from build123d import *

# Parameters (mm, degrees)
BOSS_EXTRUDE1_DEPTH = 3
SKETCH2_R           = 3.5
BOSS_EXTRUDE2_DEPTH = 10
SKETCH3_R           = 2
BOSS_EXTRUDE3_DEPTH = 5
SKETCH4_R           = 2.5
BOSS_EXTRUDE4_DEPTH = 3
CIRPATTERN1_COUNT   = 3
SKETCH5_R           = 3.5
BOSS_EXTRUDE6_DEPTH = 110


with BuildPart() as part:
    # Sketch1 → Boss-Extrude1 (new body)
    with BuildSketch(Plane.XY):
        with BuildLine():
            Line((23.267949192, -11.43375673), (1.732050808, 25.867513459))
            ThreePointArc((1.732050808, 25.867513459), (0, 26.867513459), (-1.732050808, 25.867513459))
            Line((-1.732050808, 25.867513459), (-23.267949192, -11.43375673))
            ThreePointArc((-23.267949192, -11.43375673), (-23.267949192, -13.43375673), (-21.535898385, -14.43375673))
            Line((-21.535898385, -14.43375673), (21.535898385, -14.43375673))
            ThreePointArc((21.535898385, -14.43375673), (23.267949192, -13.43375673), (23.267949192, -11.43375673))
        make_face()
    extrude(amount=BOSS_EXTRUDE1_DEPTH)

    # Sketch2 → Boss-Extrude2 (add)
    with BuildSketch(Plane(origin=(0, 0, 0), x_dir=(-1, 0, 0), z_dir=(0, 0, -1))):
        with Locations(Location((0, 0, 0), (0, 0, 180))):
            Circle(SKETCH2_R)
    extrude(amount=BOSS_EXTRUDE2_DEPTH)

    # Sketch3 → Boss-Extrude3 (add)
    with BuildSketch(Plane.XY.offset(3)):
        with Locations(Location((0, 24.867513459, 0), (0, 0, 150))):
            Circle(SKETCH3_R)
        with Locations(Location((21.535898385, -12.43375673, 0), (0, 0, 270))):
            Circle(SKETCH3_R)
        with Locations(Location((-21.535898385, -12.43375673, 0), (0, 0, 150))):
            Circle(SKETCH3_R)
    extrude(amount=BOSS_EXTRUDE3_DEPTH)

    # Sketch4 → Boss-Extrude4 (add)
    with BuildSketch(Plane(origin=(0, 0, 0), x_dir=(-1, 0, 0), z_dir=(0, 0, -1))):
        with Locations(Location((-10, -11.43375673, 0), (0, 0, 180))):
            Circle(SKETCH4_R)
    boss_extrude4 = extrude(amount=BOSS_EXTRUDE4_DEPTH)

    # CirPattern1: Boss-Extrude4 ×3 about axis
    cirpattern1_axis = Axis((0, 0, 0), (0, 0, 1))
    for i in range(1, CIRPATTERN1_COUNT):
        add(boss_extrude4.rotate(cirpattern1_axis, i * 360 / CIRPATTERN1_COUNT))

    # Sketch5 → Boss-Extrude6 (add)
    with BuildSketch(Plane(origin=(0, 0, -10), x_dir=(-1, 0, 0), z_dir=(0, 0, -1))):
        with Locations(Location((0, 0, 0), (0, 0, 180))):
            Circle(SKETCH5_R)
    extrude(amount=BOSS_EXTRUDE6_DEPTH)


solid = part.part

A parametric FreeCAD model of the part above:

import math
import FreeCAD as App
import Part
import Sketcher

V = App.Vector
Q = App.Units.Quantity

doc = App.newDocument("Part")
body = doc.addObject("PartDesign::Body", "Body")

# Sketch on XY plane
sketch1 = body.newObject("Sketcher::SketchObject", "Sketch")
sketch1.AttachmentSupport = (doc.getObject("XY_Plane"), [""])
sketch1.MapMode = "FlatFace"
sketch1.addGeometry([
    Part.LineSegment(V(23.3, -11.4, 0), V(1.7, 25.9, 0)),  # 0
    Part.ArcOfCircle(Part.Circle(V(0, 24.9, 0), V(0, 0, 1), 2), math.radians(30), math.radians(150)),  # 1
    Part.LineSegment(V(-1.7, 25.9, 0), V(-23.3, -11.4, 0)),  # 2
    Part.ArcOfCircle(Part.Circle(V(-21.5, -12.4, 0), V(0, 0, 1), 2), math.radians(150), math.radians(270)),  # 3
    Part.LineSegment(V(-21.5, -14.4, 0), V(21.5, -14.4, 0)),  # 4
    Part.ArcOfCircle(Part.Circle(V(21.5, -12.4, 0), V(0, 0, 1), 2), math.radians(-90), math.radians(30)),  # 5
], False)
sketch1.addConstraint([
    Sketcher.Constraint("Tangent", 0, 2, 1, 1),
    Sketcher.Constraint("Tangent", 1, 2, 2, 1),
    Sketcher.Constraint("Tangent", 2, 2, 3, 1),
    Sketcher.Constraint("Tangent", 3, 2, 4, 1),
    Sketcher.Constraint("Tangent", 4, 2, 5, 1),
    Sketcher.Constraint("Tangent", 5, 2, 0, 1),
    Sketcher.Constraint("Horizontal", 4),
    Sketcher.Constraint("Equal", 1, 3),
    Sketcher.Constraint("Equal", 3, 5),
    Sketcher.Constraint("Symmetric", 0, 2, 1, 2, -2),
    Sketcher.Constraint("Radius", 1, 2.0),
    Sketcher.Constraint("Angle", 0, Q("120 deg")),
    Sketcher.Constraint("DistanceX", 2, 2, 0, 2, 25.0),
    Sketcher.Constraint("DistanceY", -1, 1, 1, 3, 24.867513),
])
pad1 = body.newObject("PartDesign::Pad", "Pad")
pad1.Profile = sketch1
pad1.Length = 3

# Sketch on XY plane
sketch2 = body.newObject("Sketcher::SketchObject", "Sketch001")
sketch2.AttachmentSupport = (doc.getObject("XY_Plane"), [""])
sketch2.MapMode = "FlatFace"
sketch2.addGeometry(Part.Circle(V(0, 0, 0), V(0, 0, 1), 3.5), False)
sketch2.addConstraint([
    Sketcher.Constraint("Coincident", 0, 3, -1, 1),
    Sketcher.Constraint("Diameter", 0, 7.0),
])
pad2 = body.newObject("PartDesign::Pad", "Pad001")
pad2.Profile = sketch2
pad2.Length = 10
pad2.Reversed = True

# Sketch on XY plane
sketch3 = body.newObject("Sketcher::SketchObject", "Sketch002")
sketch3.AttachmentSupport = (doc.getObject("XY_Plane"), [""])
sketch3.MapMode = "FlatFace"
sketch3.AttachmentOffset = App.Placement(V(0, 0, 3), App.Rotation())
sketch3.addGeometry([
    Part.Circle(V(0, 24.9, 0), V(0, 0, 1), 2),
    Part.Circle(V(21.5, -12.4, 0), V(0, 0, 1), 2),
    Part.Circle(V(-21.5, -12.4, 0), V(0, 0, 1), 2),
], False)
sketch3.addConstraint([
    Sketcher.Constraint("Equal", 0, 1),
    Sketcher.Constraint("Equal", 1, 2),
    Sketcher.Constraint("Symmetric", 1, 3, 2, 3, -2),
    Sketcher.Constraint("PointOnObject", 0, 3, -2),
    Sketcher.Constraint("Diameter", 0, 4.0),
    Sketcher.Constraint("DistanceX", -1, 1, 1, 3, 21.535898),
    Sketcher.Constraint("DistanceY", 1, 3, 0, 3, 37.30127),
    Sketcher.Constraint("DistanceY", -1, 1, 0, 3, 24.867513),
])
pad3 = body.newObject("PartDesign::Pad", "Pad002")
pad3.Profile = sketch3
pad3.Length = 5

# Sketch on XY plane
sketch4 = body.newObject("Sketcher::SketchObject", "Sketch003")
sketch4.AttachmentSupport = (doc.getObject("XY_Plane"), [""])
sketch4.MapMode = "FlatFace"
sketch4.addGeometry(Part.Circle(V(10, -11.4, 0), V(0, 0, 1), 2.5), False)
sketch4.addConstraint([
    Sketcher.Constraint("Diameter", 0, 5.0),
    Sketcher.Constraint("DistanceX", -1, 1, 0, 3, 10.0),
    Sketcher.Constraint("DistanceY", 0, 3, -1, 1, 11.433757),
])
pad4 = body.newObject("PartDesign::Pad", "Pad003")
pad4.Profile = sketch4
pad4.Length = 3
pad4.Reversed = True
doc.recompute()

polarpattern = body.newObject("PartDesign::PolarPattern", "PolarPattern")
polarpattern.Originals = [pad4]
polarpattern.Axis = (doc.getObject("Z_Axis"), [""])
polarpattern.Angle = 360
polarpattern.Occurrences = 3
body.Tip = polarpattern

# Sketch on XY plane
sketch5 = body.newObject("Sketcher::SketchObject", "Sketch004")
sketch5.AttachmentSupport = (doc.getObject("XY_Plane"), [""])
sketch5.MapMode = "FlatFace"
sketch5.AttachmentOffset = App.Placement(V(0, 0, -10), App.Rotation())
sketch5.addGeometry(Part.Circle(V(0, 0, 0), V(0, 0, 1), 3.5), False)
sketch5.addConstraint([
    Sketcher.Constraint("Coincident", 0, 3, -1, 1),
    Sketcher.Constraint("Diameter", 0, 7.0),
])
pad5 = body.newObject("PartDesign::Pad", "Pad004")
pad5.Profile = sketch5
pad5.Length = 110
pad5.Reversed = True

doc.recompute()
